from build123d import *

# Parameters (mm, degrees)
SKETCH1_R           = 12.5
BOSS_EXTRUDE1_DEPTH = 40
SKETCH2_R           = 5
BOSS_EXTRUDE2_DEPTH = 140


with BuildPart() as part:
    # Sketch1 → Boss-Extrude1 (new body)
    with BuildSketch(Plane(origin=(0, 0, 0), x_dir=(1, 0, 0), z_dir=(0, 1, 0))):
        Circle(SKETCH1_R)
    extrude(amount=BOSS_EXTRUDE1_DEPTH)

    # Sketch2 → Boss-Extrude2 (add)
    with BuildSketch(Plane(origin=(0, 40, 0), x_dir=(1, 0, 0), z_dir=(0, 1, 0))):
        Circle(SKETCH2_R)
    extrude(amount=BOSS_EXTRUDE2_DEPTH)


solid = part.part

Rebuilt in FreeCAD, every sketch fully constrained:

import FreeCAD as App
import Part
import Sketcher

V = App.Vector
Q = App.Units.Quantity

doc = App.newDocument("Part")
body = doc.addObject("PartDesign::Body", "Body")

# Sketch on XZ plane
sketch1 = body.newObject("Sketcher::SketchObject", "Sketch")
sketch1.AttachmentSupport = (doc.getObject("XZ_Plane"), [""])
sketch1.MapMode = "FlatFace"
sketch1.addGeometry(Part.Circle(V(0, 0, 0), V(0, 0, 1), 12), False)
sketch1.addConstraint([
    Sketcher.Constraint("Coincident", 0, 3, -1, 1),
    Sketcher.Constraint("Diameter", 0, Q("25 mm")),
])
pad1 = body.newObject("PartDesign::Pad", "Pad")
pad1.Profile = sketch1
pad1.Length = 40
pad1.Reversed = True

# Sketch on XZ plane
sketch2 = body.newObject("Sketcher::SketchObject", "Sketch001")
sketch2.AttachmentSupport = (doc.getObject("XZ_Plane"), [""])
sketch2.MapMode = "FlatFace"
sketch2.AttachmentOffset = App.Placement(V(0, 0, -40), App.Rotation())
sketch2.addGeometry(Part.Circle(V(0, 0, 0), V(0, 0, 1), 5), False)
sketch2.addConstraint([
    Sketcher.Constraint("Coincident", 0, 3, -1, 1),
    Sketcher.Constraint("Diameter", 0, Q("10 mm")),
])
pad2 = body.newObject("PartDesign::Pad", "Pad001")
pad2.Profile = sketch2
pad2.Length = 140
pad2.Reversed = True

doc.recompute()
